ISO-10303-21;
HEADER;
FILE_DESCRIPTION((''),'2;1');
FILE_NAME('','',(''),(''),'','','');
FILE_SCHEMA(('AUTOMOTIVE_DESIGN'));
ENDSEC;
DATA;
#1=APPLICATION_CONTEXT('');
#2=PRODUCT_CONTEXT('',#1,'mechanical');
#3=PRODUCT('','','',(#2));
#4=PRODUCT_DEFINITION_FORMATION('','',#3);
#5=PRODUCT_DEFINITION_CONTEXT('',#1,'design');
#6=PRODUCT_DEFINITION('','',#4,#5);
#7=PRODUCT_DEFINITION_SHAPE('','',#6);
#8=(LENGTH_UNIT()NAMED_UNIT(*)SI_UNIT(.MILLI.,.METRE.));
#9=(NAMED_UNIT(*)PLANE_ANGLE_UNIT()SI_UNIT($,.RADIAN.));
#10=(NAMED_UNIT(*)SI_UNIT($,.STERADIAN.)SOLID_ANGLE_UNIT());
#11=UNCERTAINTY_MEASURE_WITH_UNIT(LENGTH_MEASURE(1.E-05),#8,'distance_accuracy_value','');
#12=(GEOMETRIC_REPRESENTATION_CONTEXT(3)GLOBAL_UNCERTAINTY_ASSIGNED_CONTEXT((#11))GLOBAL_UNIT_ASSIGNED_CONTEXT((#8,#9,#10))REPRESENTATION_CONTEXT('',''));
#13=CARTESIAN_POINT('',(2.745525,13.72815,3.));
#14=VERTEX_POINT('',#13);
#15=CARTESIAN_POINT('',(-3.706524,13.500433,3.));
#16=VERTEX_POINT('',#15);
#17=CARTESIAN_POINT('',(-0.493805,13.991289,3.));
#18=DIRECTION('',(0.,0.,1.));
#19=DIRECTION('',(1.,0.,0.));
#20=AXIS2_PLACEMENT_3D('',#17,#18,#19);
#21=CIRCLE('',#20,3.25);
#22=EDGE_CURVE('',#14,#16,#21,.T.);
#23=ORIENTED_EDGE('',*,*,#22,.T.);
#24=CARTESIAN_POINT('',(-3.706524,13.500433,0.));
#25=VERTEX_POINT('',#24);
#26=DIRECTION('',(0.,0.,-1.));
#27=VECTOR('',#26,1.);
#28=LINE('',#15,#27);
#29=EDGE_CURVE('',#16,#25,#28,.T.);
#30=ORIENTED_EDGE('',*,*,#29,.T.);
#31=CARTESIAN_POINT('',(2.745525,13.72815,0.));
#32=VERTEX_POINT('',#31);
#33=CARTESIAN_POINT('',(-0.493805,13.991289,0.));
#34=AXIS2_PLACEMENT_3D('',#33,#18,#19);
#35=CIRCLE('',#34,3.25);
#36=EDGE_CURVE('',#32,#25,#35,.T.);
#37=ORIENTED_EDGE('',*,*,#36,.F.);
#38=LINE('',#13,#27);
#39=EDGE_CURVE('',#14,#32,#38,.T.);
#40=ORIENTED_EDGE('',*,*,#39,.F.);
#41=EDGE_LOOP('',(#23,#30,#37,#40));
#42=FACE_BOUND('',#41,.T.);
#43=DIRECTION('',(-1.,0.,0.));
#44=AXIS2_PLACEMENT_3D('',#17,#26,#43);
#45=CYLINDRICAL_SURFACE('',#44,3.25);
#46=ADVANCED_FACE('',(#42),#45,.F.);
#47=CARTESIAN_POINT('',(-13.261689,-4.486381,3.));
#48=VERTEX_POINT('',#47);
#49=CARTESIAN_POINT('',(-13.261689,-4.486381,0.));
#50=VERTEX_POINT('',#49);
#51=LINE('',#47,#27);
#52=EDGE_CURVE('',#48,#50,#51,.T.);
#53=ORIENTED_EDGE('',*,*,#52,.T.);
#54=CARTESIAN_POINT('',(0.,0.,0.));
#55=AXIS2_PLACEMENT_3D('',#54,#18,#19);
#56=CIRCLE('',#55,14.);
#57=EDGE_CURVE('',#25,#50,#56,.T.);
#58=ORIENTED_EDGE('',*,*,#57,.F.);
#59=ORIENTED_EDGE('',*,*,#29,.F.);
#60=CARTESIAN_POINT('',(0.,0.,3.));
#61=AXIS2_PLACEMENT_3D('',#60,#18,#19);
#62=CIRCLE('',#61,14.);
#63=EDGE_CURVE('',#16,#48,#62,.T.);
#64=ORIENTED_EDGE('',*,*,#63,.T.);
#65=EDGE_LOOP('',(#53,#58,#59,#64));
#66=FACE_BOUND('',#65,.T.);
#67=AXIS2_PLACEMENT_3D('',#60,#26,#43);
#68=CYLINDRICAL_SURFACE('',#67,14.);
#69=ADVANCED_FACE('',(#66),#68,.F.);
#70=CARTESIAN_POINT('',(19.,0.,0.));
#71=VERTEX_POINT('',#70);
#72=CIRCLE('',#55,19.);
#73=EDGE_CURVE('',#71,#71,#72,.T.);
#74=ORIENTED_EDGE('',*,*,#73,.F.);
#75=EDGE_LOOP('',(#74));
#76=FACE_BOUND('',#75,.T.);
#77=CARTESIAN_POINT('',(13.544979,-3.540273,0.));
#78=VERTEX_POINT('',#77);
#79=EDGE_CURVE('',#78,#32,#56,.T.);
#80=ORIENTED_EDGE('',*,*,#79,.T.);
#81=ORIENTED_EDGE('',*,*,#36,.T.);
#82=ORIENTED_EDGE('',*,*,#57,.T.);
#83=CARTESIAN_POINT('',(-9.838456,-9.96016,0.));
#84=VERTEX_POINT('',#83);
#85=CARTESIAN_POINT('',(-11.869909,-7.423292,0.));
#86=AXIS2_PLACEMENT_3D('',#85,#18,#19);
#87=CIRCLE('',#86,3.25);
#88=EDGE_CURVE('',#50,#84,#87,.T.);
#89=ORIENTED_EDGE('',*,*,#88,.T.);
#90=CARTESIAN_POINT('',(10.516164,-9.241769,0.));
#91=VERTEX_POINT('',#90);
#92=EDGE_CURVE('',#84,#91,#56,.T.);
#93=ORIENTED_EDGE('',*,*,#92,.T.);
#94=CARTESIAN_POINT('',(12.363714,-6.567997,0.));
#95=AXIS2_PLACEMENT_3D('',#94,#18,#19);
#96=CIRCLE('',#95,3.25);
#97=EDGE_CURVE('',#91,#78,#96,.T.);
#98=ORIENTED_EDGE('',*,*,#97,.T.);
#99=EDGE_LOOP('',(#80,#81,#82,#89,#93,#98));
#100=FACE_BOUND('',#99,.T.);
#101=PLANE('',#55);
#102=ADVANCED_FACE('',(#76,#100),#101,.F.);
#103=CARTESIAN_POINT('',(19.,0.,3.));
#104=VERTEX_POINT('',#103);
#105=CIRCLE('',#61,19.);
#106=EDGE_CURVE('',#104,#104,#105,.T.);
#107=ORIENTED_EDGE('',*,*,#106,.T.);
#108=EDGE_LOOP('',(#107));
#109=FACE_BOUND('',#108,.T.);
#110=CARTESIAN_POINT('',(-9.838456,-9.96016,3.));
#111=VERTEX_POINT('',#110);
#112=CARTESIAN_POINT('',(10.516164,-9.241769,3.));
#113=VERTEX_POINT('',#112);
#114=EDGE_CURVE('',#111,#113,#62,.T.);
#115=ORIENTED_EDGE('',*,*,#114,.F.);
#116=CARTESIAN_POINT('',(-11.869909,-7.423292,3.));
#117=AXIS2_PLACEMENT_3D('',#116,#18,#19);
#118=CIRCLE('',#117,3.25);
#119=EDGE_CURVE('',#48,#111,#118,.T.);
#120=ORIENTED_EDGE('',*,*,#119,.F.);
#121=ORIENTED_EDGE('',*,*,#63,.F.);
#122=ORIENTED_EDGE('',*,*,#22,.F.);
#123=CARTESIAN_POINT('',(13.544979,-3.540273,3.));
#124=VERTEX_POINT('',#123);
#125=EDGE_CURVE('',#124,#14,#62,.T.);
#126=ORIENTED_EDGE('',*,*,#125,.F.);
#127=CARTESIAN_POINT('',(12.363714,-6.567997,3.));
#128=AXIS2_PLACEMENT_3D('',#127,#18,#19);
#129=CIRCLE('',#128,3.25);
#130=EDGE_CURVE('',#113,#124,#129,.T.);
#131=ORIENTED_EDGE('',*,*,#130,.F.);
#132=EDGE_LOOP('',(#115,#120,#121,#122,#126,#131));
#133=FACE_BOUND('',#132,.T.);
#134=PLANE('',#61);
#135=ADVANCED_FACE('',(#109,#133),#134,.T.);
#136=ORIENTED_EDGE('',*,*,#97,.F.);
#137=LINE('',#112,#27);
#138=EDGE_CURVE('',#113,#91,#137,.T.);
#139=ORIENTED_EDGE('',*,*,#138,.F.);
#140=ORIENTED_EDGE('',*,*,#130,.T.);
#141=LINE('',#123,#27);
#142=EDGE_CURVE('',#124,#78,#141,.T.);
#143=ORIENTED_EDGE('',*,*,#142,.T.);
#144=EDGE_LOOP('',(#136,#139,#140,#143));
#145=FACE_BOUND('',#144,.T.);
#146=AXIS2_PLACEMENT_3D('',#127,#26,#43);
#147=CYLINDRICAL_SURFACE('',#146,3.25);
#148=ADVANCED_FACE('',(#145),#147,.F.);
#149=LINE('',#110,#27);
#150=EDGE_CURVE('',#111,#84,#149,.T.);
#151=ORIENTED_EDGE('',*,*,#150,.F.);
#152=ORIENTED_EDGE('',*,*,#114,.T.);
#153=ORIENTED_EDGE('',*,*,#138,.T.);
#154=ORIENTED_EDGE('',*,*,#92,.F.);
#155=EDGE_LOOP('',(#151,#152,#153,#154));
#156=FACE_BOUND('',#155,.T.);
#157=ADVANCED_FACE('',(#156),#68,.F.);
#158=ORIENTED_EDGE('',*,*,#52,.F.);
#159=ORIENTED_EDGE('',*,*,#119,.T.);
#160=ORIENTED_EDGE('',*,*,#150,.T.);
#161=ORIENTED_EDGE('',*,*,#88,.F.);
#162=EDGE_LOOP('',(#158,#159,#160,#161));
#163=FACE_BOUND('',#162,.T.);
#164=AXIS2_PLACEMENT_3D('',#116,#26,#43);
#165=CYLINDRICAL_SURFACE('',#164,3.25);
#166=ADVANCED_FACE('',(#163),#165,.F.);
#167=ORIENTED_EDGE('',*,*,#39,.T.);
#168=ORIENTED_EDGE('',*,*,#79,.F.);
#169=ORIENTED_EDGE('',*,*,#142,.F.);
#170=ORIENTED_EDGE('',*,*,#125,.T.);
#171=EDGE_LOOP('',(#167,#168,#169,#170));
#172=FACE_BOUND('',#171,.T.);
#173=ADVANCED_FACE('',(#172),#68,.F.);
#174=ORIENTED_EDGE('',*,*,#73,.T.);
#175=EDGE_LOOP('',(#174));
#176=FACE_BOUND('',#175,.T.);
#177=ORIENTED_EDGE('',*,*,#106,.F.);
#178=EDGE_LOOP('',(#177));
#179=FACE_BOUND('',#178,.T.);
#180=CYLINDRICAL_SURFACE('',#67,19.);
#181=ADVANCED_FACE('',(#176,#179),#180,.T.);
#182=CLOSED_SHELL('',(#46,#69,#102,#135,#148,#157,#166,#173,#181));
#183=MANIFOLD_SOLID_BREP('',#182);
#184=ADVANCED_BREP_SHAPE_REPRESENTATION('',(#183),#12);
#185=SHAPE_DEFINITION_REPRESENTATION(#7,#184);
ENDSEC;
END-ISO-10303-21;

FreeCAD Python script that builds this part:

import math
import FreeCAD as App
import Part
import Sketcher
from FreeCAD import Vector
Q = App.Units.Quantity

doc = App.newDocument("Part")
body = doc.addObject("PartDesign::Body", "Body")

sketch1 = doc.addObject("Sketcher::SketchObject", "Sketch")
body.addObject(sketch1)
sketch1.AttachmentSupport = (doc.XY_Plane, [""])
sketch1.MapMode = "FlatFace"
sketch1.addGeometry(Part.Circle(Vector(0, 0, 0), Vector(0, 0, 1), 19), False)
sketch1.addGeometry(Part.ArcOfCircle(Part.Circle(Vector(-0.5, 14, 0), Vector(0, 0, 1), 3.2), math.radians(-5), math.radians(189)), False)
sketch1.addGeometry(Part.ArcOfCircle(Part.Circle(Vector(0, 0, 0), Vector(0, 0, 1), 14), math.radians(-15), math.radians(79)), False)
sketch1.addGeometry(Part.ArcOfCircle(Part.Circle(Vector(12.4, -6.6, 0), Vector(0, 0, 1), 3.2), math.radians(-125), math.radians(69)), False)
sketch1.addGeometry(Part.ArcOfCircle(Part.Circle(Vector(0, 0, 0), Vector(0, 0, 1), 14), math.radians(-135), math.radians(-41)), False)
sketch1.addGeometry(Part.ArcOfCircle(Part.Circle(Vector(-11.9, -7.4, 0), Vector(0, 0, 1), 3.2), math.radians(115), math.radians(309)), False)
sketch1.addGeometry(Part.ArcOfCircle(Part.Circle(Vector(0, 0, 0), Vector(0, 0, 1), 14), math.radians(105), math.radians(199)), False)
sketch1.addConstraint(Sketcher.Constraint("Coincident", 1, 1, 2, 2))
sketch1.addConstraint(Sketcher.Constraint("Coincident", 2, 1, 3, 2))
sketch1.addConstraint(Sketcher.Constraint("Coincident", 3, 1, 4, 2))
sketch1.addConstraint(Sketcher.Constraint("Coincident", 4, 1, 5, 2))
sketch1.addConstraint(Sketcher.Constraint("Coincident", 5, 1, 6, 2))
sketch1.addConstraint(Sketcher.Constraint("Coincident", 6, 1, 1, 2))
sketch1.addConstraint(Sketcher.Constraint("Coincident", 0, 3, -1, 1))
sketch1.addConstraint(Sketcher.Constraint("Coincident", 2, 3, -1, 1))
sketch1.addConstraint(Sketcher.Constraint("Coincident", 4, 3, -1, 1))
sketch1.addConstraint(Sketcher.Constraint("Coincident", 6, 3, -1, 1))
sketch1.addConstraint(Sketcher.Constraint("Equal", 1, 3))
sketch1.addConstraint(Sketcher.Constraint("Equal", 2, 4))
sketch1.addConstraint(Sketcher.Constraint("Equal", 3, 5))
sketch1.addConstraint(Sketcher.Constraint("Equal", 4, 6))
sketch1.addConstraint(Sketcher.Constraint("Diameter", 0, Q("38 mm")))
sketch1.addConstraint(Sketcher.Constraint("Radius", 2, Q("14 mm")))
sketch1.addConstraint(Sketcher.Constraint("Radius", 1, Q("3.25 mm")))
sketch1.addConstraint(Sketcher.Constraint("DistanceY", -1, 1, 1, 3, Q("13.991289 mm")))
sketch1.addConstraint(Sketcher.Constraint("DistanceX", 5, 3, -1, 1, Q("11.869909 mm")))
sketch1.addConstraint(Sketcher.Constraint("DistanceY", -1, 1, 1, 1, Q("13.72815 mm")))
sketch1.addConstraint(Sketcher.Constraint("DistanceX", -1, 1, 2, 1, Q("13.544979 mm")))
sketch1.addConstraint(Sketcher.Constraint("DistanceY", 3, 1, -1, 1, Q("9.241769 mm")))
sketch1.addConstraint(Sketcher.Constraint("DistanceY", 4, 1, -1, 1, Q("9.96016 mm")))
pad1 = doc.addObject("PartDesign::Pad", "Pad")
body.addObject(pad1)
pad1.Profile = sketch1
pad1.Length = 3

doc.recompute()
